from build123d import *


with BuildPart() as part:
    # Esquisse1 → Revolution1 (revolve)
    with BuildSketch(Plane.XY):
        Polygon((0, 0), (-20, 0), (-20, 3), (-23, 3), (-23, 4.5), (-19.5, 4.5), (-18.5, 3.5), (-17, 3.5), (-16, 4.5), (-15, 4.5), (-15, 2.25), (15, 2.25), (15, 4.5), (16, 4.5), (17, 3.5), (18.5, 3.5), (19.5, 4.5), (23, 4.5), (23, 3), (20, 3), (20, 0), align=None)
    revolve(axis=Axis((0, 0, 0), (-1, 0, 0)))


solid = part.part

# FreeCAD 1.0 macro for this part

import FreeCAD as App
import Part
import Sketcher


def add_polygon(sketch, points):
    """Adds a closed chain of lines whose ends are joined by coincident constraints."""
    first, n = sketch.GeometryCount, len(points)
    for a, b in zip(points, points[1:] + points[:1]):
        sketch.addGeometry(Part.LineSegment(App.Vector(*a, 0), App.Vector(*b, 0)), False)
    for i in range(n):
        sketch.addConstraint(Sketcher.Constraint("Coincident", first + i, 2, first + (i + 1) % n, 1))

doc = App.newDocument("Part")
body = doc.addObject("PartDesign::Body", "Body")

# Sketch on XY plane
sketch1 = doc.addObject("Sketcher::SketchObject", "Sketch")
body.addObject(sketch1)
sketch1.AttachmentSupport = (doc.XY_Plane, [""])
sketch1.MapMode = "FlatFace"
add_polygon(sketch1, [(-20, 0), (20, 0), (20, 3), (23, 3), (23, 4.5), (19.5, 4.5), (18.5, 3.5), (17, 3.5), (16, 4.5), (15, 4.5), (15, 2.2), (-15, 2.2), (-15, 4.5), (-16, 4.5), (-17, 3.5), (-18.5, 3.5), (-19.5, 4.5), (-23, 4.5), (-23, 3), (-20, 3)])  # lines 0-19
sketch1.addConstraint(Sketcher.Constraint("Horizontal", 0))
sketch1.addConstraint(Sketcher.Constraint("Vertical", 1))
sketch1.addConstraint(Sketcher.Constraint("Horizontal", 2))
sketch1.addConstraint(Sketcher.Constraint("Vertical", 3))
sketch1.addConstraint(Sketcher.Constraint("Horizontal", 4))
sketch1.addConstraint(Sketcher.Constraint("Horizontal", 6))
sketch1.addConstraint(Sketcher.Constraint("Horizontal", 8))
sketch1.addConstraint(Sketcher.Constraint("Vertical", 9))
sketch1.addConstraint(Sketcher.Constraint("Horizontal", 10))
sketch1.addConstraint(Sketcher.Constraint("Vertical", 11))
sketch1.addConstraint(Sketcher.Constraint("Horizontal", 12))
sketch1.addConstraint(Sketcher.Constraint("Horizontal", 14))
sketch1.addConstraint(Sketcher.Constraint("Horizontal", 16))
sketch1.addConstraint(Sketcher.Constraint("Vertical", 17))
sketch1.addConstraint(Sketcher.Constraint("Horizontal", 18))
sketch1.addConstraint(Sketcher.Constraint("Vertical", 19))
sketch1.addConstraint(Sketcher.Constraint("Symmetric", 0, 2, 19, 2, -1, 1))
sketch1.addConstraint(Sketcher.Constraint("Symmetric", 8, 2, 11, 2, -2))
sketch1.addConstraint(Sketcher.Constraint("Symmetric", 6, 2, 13, 2, -2))
sketch1.addConstraint(Sketcher.Constraint("Symmetric", 4, 2, 15, 2, -2))
sketch1.addConstraint(Sketcher.Constraint("Symmetric", 2, 2, 17, 2, -2))
sketch1.addConstraint(Sketcher.Constraint("Perpendicular", 5, 7))
sketch1.addConstraint(Sketcher.Constraint("Perpendicular", 7, 13))
sketch1.addConstraint(Sketcher.Constraint("Perpendicular", 13, 15))
sketch1.addConstraint(Sketcher.Constraint("Horizontal", 4, 2, 7, 2))
sketch1.addConstraint(Sketcher.Constraint("Equal", 8, 12))
sketch1.addConstraint(Sketcher.Constraint("Equal", 18, 1))
sketch1.addConstraint(Sketcher.Constraint("Equal", 14, 3))
sketch1.addConstraint(Sketcher.Constraint("DistanceX", 0, 1, 0, 2, 40.0))
sketch1.addConstraint(Sketcher.Constraint("DistanceX", 2, 1, 2, 2, 3.0))
sketch1.addConstraint(Sketcher.Constraint("DistanceX", 8, 2, 8, 1, 1.0))
sketch1.addConstraint(Sketcher.Constraint("DistanceX", 10, 2, 10, 1, 30.0))
sketch1.addConstraint(Sketcher.Constraint("DistanceX", 4, 2, 4, 1, 3.5))
sketch1.addConstraint(Sketcher.Constraint("DistanceX", 6, 2, 6, 1, 1.5))
sketch1.addConstraint(Sketcher.Constraint("DistanceY", 9, 2, 9, 1, 2.25))
revolution = doc.addObject("PartDesign::Revolution", "Revolution")
body.addObject(revolution)
revolution.Profile = sketch1
revolution.ReferenceAxis = (sketch1, ["H_Axis"])
revolution.Angle = 360

doc.recompute()
